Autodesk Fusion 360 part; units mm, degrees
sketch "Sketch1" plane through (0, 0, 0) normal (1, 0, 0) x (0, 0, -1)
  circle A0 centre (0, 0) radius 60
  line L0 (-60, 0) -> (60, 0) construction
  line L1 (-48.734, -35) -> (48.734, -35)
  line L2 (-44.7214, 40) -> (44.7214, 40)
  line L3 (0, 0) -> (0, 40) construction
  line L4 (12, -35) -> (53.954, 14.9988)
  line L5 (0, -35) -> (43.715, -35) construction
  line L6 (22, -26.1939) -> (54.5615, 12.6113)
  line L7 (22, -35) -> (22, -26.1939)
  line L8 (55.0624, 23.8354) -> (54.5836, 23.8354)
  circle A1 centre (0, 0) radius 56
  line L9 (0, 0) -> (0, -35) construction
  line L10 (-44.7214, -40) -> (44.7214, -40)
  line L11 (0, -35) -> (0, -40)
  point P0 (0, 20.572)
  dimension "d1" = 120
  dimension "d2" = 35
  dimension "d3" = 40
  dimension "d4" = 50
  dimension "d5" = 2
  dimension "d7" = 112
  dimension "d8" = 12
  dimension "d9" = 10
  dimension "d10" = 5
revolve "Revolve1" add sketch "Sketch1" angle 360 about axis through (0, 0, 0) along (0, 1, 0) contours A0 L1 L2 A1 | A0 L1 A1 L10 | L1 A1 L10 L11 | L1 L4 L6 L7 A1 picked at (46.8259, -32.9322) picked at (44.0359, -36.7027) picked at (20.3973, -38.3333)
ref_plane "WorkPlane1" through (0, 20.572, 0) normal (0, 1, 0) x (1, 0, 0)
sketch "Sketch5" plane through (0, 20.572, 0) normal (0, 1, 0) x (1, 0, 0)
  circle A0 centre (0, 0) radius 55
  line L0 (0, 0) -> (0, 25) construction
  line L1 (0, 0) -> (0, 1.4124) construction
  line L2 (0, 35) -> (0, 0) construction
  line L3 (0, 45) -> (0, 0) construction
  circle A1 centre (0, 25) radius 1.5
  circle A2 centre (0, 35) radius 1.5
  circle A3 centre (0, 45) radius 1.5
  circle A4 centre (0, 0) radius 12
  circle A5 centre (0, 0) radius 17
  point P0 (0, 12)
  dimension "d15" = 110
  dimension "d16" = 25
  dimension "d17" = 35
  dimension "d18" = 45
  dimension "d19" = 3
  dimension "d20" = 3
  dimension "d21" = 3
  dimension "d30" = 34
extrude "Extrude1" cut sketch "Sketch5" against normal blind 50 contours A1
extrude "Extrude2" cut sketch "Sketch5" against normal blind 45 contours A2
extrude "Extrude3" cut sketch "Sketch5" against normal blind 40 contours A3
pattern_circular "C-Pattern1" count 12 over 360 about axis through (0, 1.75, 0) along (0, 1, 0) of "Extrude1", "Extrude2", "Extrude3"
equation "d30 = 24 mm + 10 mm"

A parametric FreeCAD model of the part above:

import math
import FreeCAD as App
import Part
import Sketcher
from FreeCAD import Vector
Q = App.Units.Quantity

doc = App.newDocument("Part")
body = doc.addObject("PartDesign::Body", "Body")

# Sketch on YZ plane
sketch1 = body.newObject("Sketcher::SketchObject", "Sketch")
sketch1.AttachmentSupport = (doc.getObject("YZ_Plane"), [""])
sketch1.MapMode = "FlatFace"
sketch1.addGeometry(Part.LineSegment(Vector(40, -45, 0), Vector(40, -39, 0)), False)
sketch1.addGeometry(Part.ArcOfCircle(Part.Circle(Vector(0, 0, 0), Vector(0, 0, 1), 56), math.radians(-74), math.radians(-44)), False)
sketch1.addGeometry(Part.LineSegment(Vector(15, -54, 0), Vector(-35, -12, 0)), False)
sketch1.addGeometry(Part.LineSegment(Vector(-35, -12, 0), Vector(-35, 0, 0)), False)
sketch1.addGeometry(Part.LineSegment(Vector(-35, 0, 0), Vector(-40, 0, 0)), False)
sketch1.addGeometry(Part.LineSegment(Vector(-40, 0, 0), Vector(-40, -45, 0)), False)
sketch1.addGeometry(Part.ArcOfCircle(Part.Circle(Vector(0, 0, 0), Vector(0, 0, 1), 60), math.radians(-132), math.radians(-48)), False)
sketch1.addGeometry(Part.LineSegment(Vector(-35, -44, 0), Vector(-35, -22, 0)), False)
sketch1.addGeometry(Part.LineSegment(Vector(-35, -22, 0), Vector(-26, -22, 0)), False)
sketch1.addGeometry(Part.LineSegment(Vector(-26, -22, 0), Vector(13, -55, 0)), False)
sketch1.addGeometry(Part.ArcOfCircle(Part.Circle(Vector(0, 0, 0), Vector(0, 0, 1), 56), math.radians(-129), math.radians(-77)), False)
sketch1.addConstraint(Sketcher.Constraint("Coincident", 0, 2, 1, 2))
sketch1.addConstraint(Sketcher.Constraint("Coincident", 1, 1, 2, 1))
sketch1.addConstraint(Sketcher.Constraint("Coincident", 2, 2, 3, 1))
sketch1.addConstraint(Sketcher.Constraint("Coincident", 3, 2, 4, 1))
sketch1.addConstraint(Sketcher.Constraint("Coincident", 4, 2, 5, 1))
sketch1.addConstraint(Sketcher.Constraint("Coincident", 5, 2, 6, 1))
sketch1.addConstraint(Sketcher.Constraint("Coincident", 6, 2, 0, 1))
sketch1.addConstraint(Sketcher.Constraint("Coincident", 7, 2, 8, 1))
sketch1.addConstraint(Sketcher.Constraint("Coincident", 8, 2, 9, 1))
sketch1.addConstraint(Sketcher.Constraint("Coincident", 9, 2, 10, 2))
sketch1.addConstraint(Sketcher.Constraint("Coincident", 10, 1, 7, 1))
sketch1.addConstraint(Sketcher.Constraint("Vertical", 0))
sketch1.addConstraint(Sketcher.Constraint("Vertical", 3))
sketch1.addConstraint(Sketcher.Constraint("Horizontal", 4))
sketch1.addConstraint(Sketcher.Constraint("Vertical", 5))
sketch1.addConstraint(Sketcher.Constraint("Vertical", 7))
sketch1.addConstraint(Sketcher.Constraint("Horizontal", 8))
sketch1.addConstraint(Sketcher.Constraint("Coincident", 1, 3, -1, 1))
sketch1.addConstraint(Sketcher.Constraint("Coincident", 6, 3, -1, 1))
sketch1.addConstraint(Sketcher.Constraint("Coincident", 10, 3, -1, 1))
sketch1.addConstraint(Sketcher.Constraint("Equal", 1, 10))
sketch1.addConstraint(Sketcher.Constraint("PointOnObject", 3, 2, -1))
sketch1.addConstraint(Sketcher.Constraint("Parallel", 2, 9))
sketch1.addConstraint(Sketcher.Constraint("Horizontal", 5, 2, 6, 2))
sketch1.addConstraint(Sketcher.Constraint("Vertical", 3, 2, 7, 2))
sketch1.addConstraint(Sketcher.Constraint("Radius", 1, 56.0))
sketch1.addConstraint(Sketcher.Constraint("Radius", 6, 60.0))
sketch1.addConstraint(Sketcher.Constraint("DistanceX", 4, 2, 4, 1, 5.0))
sketch1.addConstraint(Sketcher.Constraint("DistanceY", 3, 1, 3, 2, 12.0))
sketch1.addConstraint(Sketcher.Constraint("Angle", 9, Q("-40 deg")))
sketch1.addConstraint(Sketcher.Constraint("DistanceX", -1, 1, 0, 2, 40.0))
sketch1.addConstraint(Sketcher.Constraint("DistanceY", 7, 2, 2, 2, 10.0))
sketch1.addConstraint(Sketcher.Constraint("DistanceX", 8, 1, 8, 2, 8.806))
revolution = body.newObject("PartDesign::Revolution", "Revolution")
revolution.Profile = sketch1
revolution.ReferenceAxis = (sketch1, ["H_Axis"])
revolution.Angle = 360

# Sketch on XZ plane
sketch2 = body.newObject("Sketcher::SketchObject", "Sketch001")
sketch2.AttachmentSupport = (doc.getObject("XZ_Plane"), [""])
sketch2.MapMode = "FlatFace"
sketch2.AttachmentOffset = App.Placement(Vector(0, 0, -20.572), App.Rotation())
sketch2.addGeometry(Part.Circle(Vector(0, -25, 0), Vector(0, 0, 1), 1.5), False)
sketch2.addConstraint(Sketcher.Constraint("PointOnObject", 0, 3, -2))
sketch2.addConstraint(Sketcher.Constraint("Diameter", 0, 3.0))
sketch2.addConstraint(Sketcher.Constraint("DistanceY", 0, 3, -1, 1, 25.0))
pocket1 = body.newObject("PartDesign::Pocket", "Pocket")
pocket1.Profile = sketch2
pocket1.Length = 50
pocket1.Reversed = True

# Sketch on XZ plane
sketch3 = body.newObject("Sketcher::SketchObject", "Sketch002")
sketch3.AttachmentSupport = (doc.getObject("XZ_Plane"), [""])
sketch3.MapMode = "FlatFace"
sketch3.AttachmentOffset = App.Placement(Vector(0, 0, -20.572), App.Rotation())
sketch3.addGeometry(Part.Circle(Vector(0, -35, 0), Vector(0, 0, 1), 1.5), False)
sketch3.addConstraint(Sketcher.Constraint("PointOnObject", 0, 3, -2))
sketch3.addConstraint(Sketcher.Constraint("Diameter", 0, 3.0))
sketch3.addConstraint(Sketcher.Constraint("DistanceY", 0, 3, -1, 1, 35.0))
pocket2 = body.newObject("PartDesign::Pocket", "Pocket001")
pocket2.Profile = sketch3
pocket2.Length = 45
pocket2.Reversed = True

# Sketch on XZ plane
sketch4 = body.newObject("Sketcher::SketchObject", "Sketch003")
sketch4.AttachmentSupport = (doc.getObject("XZ_Plane"), [""])
sketch4.MapMode = "FlatFace"
sketch4.AttachmentOffset = App.Placement(Vector(0, 0, -20.572), App.Rotation())
sketch4.addGeometry(Part.Circle(Vector(0, -45, 0), Vector(0, 0, 1), 1.5), False)
sketch4.addConstraint(Sketcher.Constraint("PointOnObject", 0, 3, -2))
sketch4.addConstraint(Sketcher.Constraint("Diameter", 0, 3.0))
sketch4.addConstraint(Sketcher.Constraint("DistanceY", 0, 3, -1, 1, 45.0))
pocket3 = body.newObject("PartDesign::Pocket", "Pocket002")
pocket3.Profile = sketch4
pocket3.Length = 40
pocket3.Reversed = True
doc.recompute()

polarpattern = body.newObject("PartDesign::PolarPattern", "PolarPattern")
polarpattern.Originals = [pocket1, pocket2, pocket3]
polarpattern.Axis = (doc.getObject("Y_Axis"), [""])
polarpattern.Angle = 360
polarpattern.Occurrences = 12
body.Tip = polarpattern

doc.recompute()
